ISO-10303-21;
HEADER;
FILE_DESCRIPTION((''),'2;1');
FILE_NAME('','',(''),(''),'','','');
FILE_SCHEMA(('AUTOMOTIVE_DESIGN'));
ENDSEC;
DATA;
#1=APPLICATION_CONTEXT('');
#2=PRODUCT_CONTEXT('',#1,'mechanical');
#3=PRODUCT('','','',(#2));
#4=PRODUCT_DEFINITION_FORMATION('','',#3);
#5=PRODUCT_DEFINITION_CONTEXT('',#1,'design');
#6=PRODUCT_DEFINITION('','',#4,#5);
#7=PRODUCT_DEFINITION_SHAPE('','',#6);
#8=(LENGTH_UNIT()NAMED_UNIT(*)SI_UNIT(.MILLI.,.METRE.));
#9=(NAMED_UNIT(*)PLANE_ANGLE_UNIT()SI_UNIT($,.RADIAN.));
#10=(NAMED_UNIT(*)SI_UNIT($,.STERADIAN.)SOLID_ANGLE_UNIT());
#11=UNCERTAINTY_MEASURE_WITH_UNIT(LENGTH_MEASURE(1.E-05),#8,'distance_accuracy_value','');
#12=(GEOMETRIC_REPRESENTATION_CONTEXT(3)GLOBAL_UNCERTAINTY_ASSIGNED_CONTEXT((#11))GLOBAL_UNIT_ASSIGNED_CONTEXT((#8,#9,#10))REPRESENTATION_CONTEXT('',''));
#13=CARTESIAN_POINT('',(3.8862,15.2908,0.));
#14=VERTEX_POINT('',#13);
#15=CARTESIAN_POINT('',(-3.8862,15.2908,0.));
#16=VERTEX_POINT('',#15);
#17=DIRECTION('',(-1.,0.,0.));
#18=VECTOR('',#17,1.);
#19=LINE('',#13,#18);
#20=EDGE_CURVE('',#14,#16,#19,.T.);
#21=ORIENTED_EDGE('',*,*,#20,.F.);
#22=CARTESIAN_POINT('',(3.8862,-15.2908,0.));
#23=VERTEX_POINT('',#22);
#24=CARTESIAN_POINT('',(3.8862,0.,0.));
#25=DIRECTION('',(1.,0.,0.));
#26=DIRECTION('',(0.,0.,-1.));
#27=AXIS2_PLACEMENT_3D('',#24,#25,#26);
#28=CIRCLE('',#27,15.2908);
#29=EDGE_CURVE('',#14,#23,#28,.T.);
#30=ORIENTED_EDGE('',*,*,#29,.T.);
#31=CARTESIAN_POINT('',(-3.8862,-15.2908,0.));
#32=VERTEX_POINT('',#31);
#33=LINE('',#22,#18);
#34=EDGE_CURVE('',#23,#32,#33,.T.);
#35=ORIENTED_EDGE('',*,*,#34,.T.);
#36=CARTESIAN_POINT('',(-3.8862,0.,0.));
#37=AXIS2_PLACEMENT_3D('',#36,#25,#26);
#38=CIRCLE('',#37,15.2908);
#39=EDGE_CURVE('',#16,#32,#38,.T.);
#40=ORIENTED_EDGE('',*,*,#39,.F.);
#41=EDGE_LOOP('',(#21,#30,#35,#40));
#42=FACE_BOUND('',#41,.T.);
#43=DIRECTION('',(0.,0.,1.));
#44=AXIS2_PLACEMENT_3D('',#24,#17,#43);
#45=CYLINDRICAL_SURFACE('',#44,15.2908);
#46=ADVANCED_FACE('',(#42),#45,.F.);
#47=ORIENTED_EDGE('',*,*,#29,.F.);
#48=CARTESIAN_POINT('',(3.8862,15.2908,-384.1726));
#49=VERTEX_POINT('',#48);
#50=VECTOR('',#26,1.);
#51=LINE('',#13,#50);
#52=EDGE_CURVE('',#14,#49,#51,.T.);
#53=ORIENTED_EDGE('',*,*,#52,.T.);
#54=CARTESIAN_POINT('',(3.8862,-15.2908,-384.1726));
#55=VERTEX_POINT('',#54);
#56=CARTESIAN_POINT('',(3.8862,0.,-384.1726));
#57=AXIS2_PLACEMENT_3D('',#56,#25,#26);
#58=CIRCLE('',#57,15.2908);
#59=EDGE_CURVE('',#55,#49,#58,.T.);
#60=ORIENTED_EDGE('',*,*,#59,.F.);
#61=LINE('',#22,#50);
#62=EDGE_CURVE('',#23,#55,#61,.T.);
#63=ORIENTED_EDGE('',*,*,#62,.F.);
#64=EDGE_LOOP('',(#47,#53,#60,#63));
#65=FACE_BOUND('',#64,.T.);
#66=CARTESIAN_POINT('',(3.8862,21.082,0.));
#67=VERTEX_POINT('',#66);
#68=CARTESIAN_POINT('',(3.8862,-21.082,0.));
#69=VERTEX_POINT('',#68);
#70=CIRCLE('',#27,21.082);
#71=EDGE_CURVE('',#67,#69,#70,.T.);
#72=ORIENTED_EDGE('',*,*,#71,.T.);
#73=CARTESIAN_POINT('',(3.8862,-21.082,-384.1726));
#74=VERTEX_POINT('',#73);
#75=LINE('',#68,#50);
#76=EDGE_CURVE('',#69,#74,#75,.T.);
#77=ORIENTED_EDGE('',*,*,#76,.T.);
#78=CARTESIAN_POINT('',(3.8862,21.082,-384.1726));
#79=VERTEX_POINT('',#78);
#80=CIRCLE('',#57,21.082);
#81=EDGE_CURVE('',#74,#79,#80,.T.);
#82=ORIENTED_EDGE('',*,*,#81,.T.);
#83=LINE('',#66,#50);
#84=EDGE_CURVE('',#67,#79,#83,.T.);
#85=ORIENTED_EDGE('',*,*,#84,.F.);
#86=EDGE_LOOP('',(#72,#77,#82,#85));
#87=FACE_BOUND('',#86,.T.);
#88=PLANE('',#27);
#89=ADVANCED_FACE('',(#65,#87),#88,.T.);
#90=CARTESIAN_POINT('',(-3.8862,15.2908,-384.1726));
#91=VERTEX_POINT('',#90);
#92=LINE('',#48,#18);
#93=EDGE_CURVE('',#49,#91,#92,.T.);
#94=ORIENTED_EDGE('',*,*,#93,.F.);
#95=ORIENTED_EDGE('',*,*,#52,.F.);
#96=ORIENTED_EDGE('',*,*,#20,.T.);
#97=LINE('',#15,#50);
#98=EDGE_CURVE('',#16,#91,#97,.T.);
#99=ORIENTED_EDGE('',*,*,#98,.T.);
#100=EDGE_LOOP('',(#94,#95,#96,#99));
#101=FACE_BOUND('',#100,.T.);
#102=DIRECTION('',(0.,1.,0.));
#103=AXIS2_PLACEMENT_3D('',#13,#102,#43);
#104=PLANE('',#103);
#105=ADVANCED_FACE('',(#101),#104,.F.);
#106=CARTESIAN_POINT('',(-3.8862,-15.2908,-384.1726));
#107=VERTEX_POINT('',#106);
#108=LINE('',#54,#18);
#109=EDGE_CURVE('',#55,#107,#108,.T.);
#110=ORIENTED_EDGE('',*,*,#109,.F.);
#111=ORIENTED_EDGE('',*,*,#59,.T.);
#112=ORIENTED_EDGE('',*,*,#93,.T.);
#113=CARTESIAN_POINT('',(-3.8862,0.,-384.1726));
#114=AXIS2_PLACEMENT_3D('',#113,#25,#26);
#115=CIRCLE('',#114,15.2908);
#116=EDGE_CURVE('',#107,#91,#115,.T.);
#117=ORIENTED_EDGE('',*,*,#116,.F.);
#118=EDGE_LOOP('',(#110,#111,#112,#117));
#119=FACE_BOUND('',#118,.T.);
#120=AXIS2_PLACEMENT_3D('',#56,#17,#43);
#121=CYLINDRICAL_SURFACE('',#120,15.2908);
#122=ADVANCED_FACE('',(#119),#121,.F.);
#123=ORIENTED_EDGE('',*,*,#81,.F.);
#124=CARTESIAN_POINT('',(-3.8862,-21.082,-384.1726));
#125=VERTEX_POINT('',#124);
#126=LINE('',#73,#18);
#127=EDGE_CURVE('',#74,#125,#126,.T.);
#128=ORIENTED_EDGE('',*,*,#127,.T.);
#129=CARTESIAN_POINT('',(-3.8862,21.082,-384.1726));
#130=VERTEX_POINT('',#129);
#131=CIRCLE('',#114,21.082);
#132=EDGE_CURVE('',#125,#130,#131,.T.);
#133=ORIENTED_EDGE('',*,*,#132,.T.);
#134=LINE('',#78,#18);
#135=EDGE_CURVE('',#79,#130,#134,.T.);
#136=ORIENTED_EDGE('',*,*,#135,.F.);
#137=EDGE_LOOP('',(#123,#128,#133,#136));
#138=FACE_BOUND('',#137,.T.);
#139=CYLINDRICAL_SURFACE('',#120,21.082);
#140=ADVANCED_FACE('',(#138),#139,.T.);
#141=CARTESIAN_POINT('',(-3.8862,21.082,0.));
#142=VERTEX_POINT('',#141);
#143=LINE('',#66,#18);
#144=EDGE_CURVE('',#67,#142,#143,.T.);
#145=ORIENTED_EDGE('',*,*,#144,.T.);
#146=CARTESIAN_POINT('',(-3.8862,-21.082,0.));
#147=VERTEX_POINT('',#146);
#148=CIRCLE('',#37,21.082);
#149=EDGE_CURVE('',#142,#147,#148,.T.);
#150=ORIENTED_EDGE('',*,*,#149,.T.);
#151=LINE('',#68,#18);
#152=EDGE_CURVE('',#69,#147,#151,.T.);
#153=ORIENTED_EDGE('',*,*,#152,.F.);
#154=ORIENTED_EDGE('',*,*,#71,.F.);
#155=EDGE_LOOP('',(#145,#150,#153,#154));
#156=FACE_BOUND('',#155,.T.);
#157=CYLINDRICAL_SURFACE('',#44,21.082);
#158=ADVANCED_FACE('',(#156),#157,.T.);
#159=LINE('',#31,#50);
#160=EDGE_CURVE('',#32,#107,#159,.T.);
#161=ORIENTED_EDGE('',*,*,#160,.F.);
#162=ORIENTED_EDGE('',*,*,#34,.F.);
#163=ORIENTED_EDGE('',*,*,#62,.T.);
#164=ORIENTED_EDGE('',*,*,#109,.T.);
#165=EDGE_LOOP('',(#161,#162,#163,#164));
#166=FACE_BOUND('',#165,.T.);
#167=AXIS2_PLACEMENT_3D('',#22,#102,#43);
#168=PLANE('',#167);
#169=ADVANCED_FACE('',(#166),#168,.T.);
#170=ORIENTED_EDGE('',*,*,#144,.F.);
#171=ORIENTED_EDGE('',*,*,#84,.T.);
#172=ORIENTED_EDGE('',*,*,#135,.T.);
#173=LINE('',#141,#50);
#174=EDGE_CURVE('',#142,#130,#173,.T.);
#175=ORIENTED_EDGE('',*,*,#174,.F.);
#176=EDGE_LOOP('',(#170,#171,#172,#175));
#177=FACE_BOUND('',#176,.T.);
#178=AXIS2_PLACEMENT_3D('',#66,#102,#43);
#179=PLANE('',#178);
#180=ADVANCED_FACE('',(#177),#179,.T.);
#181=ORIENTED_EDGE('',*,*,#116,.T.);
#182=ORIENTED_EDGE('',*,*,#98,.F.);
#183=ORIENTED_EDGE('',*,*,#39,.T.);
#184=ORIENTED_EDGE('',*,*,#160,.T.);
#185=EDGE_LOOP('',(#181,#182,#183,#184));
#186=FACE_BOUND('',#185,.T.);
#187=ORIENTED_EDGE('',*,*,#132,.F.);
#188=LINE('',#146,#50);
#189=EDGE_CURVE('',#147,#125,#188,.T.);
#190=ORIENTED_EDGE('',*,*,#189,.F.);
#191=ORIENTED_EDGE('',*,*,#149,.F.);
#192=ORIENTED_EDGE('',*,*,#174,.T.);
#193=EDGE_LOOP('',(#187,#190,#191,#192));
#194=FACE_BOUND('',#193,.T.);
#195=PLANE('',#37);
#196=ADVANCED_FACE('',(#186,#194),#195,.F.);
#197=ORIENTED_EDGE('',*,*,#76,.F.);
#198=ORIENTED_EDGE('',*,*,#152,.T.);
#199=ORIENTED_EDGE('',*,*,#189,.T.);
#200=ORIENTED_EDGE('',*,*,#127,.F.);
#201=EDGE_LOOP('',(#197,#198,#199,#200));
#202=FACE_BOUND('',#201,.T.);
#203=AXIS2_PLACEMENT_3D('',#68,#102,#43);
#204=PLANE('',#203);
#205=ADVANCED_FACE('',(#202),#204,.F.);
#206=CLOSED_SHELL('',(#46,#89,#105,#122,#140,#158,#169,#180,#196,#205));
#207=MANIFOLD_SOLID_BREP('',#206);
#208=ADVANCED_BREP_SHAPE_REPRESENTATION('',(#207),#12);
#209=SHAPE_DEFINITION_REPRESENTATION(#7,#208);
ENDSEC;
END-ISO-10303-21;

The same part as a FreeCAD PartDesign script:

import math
import FreeCAD as App
import Part
import Sketcher
from FreeCAD import Vector
Q = App.Units.Quantity

doc = App.newDocument("Part")
body = doc.addObject("PartDesign::Body", "Body")

sketch1 = body.newObject("Sketcher::SketchObject", "Sketch")
sketch1.AttachmentSupport = (doc.getObject("YZ_Plane"), [""])
sketch1.MapMode = "FlatFace"
sketch1.addGeometry([
    Part.LineSegment(Vector(21, -384, 0), Vector(21, 0, 0)),
    Part.ArcOfCircle(Part.Circle(Vector(0, 0, 0), Vector(0, 0, 1), 21), math.radians(0), math.radians(180)),
    Part.LineSegment(Vector(-21, 0, 0), Vector(-21, -384, 0)),
    Part.ArcOfCircle(Part.Circle(Vector(0, -384, 0), Vector(0, 0, 1), 21), math.radians(180), math.radians(360)),
    Part.LineSegment(Vector(15, 0, 0), Vector(15, -384, 0)),
    Part.ArcOfCircle(Part.Circle(Vector(0, -384, 0), Vector(0, 0, 1), 15), math.radians(180), math.radians(360)),
    Part.LineSegment(Vector(-15, -384, 0), Vector(-15, 0, 0)),
    Part.ArcOfCircle(Part.Circle(Vector(0, 0, 0), Vector(0, 0, 1), 15), math.radians(0), math.radians(180)),
], False)
sketch1.addConstraint([
    Sketcher.Constraint("Tangent", 0, 2, 1, 1),
    Sketcher.Constraint("Tangent", 1, 2, 2, 1),
    Sketcher.Constraint("Tangent", 2, 2, 3, 1),
    Sketcher.Constraint("Tangent", 3, 2, 0, 1),
    Sketcher.Constraint("Tangent", 4, 2, 5, 2),
    Sketcher.Constraint("Tangent", 5, 1, 6, 1),
    Sketcher.Constraint("Tangent", 6, 2, 7, 2),
    Sketcher.Constraint("Tangent", 7, 1, 4, 1),
    Sketcher.Constraint("Vertical", 0),
    Sketcher.Constraint("Vertical", 2),
    Sketcher.Constraint("Vertical", 4),
    Sketcher.Constraint("Vertical", 6),
    Sketcher.Constraint("Coincident", 1, 3, -1, 1),
    Sketcher.Constraint("Coincident", 7, 3, -1, 1),
    Sketcher.Constraint("Horizontal", 5, 3, 2, 2),
    Sketcher.Constraint("Radius", 1, Q("0.83 in")),
    Sketcher.Constraint("Radius", 5, Q("0.602 in")),
    Sketcher.Constraint("DistanceY", 0, 1, 0, 2, Q("384.1726 mm")),
])
pad1 = body.newObject("PartDesign::Pad", "Pad")
pad1.Profile = sketch1
pad1.Length = Q("0.306 in")
pad1.Midplane = True

doc.recompute()
